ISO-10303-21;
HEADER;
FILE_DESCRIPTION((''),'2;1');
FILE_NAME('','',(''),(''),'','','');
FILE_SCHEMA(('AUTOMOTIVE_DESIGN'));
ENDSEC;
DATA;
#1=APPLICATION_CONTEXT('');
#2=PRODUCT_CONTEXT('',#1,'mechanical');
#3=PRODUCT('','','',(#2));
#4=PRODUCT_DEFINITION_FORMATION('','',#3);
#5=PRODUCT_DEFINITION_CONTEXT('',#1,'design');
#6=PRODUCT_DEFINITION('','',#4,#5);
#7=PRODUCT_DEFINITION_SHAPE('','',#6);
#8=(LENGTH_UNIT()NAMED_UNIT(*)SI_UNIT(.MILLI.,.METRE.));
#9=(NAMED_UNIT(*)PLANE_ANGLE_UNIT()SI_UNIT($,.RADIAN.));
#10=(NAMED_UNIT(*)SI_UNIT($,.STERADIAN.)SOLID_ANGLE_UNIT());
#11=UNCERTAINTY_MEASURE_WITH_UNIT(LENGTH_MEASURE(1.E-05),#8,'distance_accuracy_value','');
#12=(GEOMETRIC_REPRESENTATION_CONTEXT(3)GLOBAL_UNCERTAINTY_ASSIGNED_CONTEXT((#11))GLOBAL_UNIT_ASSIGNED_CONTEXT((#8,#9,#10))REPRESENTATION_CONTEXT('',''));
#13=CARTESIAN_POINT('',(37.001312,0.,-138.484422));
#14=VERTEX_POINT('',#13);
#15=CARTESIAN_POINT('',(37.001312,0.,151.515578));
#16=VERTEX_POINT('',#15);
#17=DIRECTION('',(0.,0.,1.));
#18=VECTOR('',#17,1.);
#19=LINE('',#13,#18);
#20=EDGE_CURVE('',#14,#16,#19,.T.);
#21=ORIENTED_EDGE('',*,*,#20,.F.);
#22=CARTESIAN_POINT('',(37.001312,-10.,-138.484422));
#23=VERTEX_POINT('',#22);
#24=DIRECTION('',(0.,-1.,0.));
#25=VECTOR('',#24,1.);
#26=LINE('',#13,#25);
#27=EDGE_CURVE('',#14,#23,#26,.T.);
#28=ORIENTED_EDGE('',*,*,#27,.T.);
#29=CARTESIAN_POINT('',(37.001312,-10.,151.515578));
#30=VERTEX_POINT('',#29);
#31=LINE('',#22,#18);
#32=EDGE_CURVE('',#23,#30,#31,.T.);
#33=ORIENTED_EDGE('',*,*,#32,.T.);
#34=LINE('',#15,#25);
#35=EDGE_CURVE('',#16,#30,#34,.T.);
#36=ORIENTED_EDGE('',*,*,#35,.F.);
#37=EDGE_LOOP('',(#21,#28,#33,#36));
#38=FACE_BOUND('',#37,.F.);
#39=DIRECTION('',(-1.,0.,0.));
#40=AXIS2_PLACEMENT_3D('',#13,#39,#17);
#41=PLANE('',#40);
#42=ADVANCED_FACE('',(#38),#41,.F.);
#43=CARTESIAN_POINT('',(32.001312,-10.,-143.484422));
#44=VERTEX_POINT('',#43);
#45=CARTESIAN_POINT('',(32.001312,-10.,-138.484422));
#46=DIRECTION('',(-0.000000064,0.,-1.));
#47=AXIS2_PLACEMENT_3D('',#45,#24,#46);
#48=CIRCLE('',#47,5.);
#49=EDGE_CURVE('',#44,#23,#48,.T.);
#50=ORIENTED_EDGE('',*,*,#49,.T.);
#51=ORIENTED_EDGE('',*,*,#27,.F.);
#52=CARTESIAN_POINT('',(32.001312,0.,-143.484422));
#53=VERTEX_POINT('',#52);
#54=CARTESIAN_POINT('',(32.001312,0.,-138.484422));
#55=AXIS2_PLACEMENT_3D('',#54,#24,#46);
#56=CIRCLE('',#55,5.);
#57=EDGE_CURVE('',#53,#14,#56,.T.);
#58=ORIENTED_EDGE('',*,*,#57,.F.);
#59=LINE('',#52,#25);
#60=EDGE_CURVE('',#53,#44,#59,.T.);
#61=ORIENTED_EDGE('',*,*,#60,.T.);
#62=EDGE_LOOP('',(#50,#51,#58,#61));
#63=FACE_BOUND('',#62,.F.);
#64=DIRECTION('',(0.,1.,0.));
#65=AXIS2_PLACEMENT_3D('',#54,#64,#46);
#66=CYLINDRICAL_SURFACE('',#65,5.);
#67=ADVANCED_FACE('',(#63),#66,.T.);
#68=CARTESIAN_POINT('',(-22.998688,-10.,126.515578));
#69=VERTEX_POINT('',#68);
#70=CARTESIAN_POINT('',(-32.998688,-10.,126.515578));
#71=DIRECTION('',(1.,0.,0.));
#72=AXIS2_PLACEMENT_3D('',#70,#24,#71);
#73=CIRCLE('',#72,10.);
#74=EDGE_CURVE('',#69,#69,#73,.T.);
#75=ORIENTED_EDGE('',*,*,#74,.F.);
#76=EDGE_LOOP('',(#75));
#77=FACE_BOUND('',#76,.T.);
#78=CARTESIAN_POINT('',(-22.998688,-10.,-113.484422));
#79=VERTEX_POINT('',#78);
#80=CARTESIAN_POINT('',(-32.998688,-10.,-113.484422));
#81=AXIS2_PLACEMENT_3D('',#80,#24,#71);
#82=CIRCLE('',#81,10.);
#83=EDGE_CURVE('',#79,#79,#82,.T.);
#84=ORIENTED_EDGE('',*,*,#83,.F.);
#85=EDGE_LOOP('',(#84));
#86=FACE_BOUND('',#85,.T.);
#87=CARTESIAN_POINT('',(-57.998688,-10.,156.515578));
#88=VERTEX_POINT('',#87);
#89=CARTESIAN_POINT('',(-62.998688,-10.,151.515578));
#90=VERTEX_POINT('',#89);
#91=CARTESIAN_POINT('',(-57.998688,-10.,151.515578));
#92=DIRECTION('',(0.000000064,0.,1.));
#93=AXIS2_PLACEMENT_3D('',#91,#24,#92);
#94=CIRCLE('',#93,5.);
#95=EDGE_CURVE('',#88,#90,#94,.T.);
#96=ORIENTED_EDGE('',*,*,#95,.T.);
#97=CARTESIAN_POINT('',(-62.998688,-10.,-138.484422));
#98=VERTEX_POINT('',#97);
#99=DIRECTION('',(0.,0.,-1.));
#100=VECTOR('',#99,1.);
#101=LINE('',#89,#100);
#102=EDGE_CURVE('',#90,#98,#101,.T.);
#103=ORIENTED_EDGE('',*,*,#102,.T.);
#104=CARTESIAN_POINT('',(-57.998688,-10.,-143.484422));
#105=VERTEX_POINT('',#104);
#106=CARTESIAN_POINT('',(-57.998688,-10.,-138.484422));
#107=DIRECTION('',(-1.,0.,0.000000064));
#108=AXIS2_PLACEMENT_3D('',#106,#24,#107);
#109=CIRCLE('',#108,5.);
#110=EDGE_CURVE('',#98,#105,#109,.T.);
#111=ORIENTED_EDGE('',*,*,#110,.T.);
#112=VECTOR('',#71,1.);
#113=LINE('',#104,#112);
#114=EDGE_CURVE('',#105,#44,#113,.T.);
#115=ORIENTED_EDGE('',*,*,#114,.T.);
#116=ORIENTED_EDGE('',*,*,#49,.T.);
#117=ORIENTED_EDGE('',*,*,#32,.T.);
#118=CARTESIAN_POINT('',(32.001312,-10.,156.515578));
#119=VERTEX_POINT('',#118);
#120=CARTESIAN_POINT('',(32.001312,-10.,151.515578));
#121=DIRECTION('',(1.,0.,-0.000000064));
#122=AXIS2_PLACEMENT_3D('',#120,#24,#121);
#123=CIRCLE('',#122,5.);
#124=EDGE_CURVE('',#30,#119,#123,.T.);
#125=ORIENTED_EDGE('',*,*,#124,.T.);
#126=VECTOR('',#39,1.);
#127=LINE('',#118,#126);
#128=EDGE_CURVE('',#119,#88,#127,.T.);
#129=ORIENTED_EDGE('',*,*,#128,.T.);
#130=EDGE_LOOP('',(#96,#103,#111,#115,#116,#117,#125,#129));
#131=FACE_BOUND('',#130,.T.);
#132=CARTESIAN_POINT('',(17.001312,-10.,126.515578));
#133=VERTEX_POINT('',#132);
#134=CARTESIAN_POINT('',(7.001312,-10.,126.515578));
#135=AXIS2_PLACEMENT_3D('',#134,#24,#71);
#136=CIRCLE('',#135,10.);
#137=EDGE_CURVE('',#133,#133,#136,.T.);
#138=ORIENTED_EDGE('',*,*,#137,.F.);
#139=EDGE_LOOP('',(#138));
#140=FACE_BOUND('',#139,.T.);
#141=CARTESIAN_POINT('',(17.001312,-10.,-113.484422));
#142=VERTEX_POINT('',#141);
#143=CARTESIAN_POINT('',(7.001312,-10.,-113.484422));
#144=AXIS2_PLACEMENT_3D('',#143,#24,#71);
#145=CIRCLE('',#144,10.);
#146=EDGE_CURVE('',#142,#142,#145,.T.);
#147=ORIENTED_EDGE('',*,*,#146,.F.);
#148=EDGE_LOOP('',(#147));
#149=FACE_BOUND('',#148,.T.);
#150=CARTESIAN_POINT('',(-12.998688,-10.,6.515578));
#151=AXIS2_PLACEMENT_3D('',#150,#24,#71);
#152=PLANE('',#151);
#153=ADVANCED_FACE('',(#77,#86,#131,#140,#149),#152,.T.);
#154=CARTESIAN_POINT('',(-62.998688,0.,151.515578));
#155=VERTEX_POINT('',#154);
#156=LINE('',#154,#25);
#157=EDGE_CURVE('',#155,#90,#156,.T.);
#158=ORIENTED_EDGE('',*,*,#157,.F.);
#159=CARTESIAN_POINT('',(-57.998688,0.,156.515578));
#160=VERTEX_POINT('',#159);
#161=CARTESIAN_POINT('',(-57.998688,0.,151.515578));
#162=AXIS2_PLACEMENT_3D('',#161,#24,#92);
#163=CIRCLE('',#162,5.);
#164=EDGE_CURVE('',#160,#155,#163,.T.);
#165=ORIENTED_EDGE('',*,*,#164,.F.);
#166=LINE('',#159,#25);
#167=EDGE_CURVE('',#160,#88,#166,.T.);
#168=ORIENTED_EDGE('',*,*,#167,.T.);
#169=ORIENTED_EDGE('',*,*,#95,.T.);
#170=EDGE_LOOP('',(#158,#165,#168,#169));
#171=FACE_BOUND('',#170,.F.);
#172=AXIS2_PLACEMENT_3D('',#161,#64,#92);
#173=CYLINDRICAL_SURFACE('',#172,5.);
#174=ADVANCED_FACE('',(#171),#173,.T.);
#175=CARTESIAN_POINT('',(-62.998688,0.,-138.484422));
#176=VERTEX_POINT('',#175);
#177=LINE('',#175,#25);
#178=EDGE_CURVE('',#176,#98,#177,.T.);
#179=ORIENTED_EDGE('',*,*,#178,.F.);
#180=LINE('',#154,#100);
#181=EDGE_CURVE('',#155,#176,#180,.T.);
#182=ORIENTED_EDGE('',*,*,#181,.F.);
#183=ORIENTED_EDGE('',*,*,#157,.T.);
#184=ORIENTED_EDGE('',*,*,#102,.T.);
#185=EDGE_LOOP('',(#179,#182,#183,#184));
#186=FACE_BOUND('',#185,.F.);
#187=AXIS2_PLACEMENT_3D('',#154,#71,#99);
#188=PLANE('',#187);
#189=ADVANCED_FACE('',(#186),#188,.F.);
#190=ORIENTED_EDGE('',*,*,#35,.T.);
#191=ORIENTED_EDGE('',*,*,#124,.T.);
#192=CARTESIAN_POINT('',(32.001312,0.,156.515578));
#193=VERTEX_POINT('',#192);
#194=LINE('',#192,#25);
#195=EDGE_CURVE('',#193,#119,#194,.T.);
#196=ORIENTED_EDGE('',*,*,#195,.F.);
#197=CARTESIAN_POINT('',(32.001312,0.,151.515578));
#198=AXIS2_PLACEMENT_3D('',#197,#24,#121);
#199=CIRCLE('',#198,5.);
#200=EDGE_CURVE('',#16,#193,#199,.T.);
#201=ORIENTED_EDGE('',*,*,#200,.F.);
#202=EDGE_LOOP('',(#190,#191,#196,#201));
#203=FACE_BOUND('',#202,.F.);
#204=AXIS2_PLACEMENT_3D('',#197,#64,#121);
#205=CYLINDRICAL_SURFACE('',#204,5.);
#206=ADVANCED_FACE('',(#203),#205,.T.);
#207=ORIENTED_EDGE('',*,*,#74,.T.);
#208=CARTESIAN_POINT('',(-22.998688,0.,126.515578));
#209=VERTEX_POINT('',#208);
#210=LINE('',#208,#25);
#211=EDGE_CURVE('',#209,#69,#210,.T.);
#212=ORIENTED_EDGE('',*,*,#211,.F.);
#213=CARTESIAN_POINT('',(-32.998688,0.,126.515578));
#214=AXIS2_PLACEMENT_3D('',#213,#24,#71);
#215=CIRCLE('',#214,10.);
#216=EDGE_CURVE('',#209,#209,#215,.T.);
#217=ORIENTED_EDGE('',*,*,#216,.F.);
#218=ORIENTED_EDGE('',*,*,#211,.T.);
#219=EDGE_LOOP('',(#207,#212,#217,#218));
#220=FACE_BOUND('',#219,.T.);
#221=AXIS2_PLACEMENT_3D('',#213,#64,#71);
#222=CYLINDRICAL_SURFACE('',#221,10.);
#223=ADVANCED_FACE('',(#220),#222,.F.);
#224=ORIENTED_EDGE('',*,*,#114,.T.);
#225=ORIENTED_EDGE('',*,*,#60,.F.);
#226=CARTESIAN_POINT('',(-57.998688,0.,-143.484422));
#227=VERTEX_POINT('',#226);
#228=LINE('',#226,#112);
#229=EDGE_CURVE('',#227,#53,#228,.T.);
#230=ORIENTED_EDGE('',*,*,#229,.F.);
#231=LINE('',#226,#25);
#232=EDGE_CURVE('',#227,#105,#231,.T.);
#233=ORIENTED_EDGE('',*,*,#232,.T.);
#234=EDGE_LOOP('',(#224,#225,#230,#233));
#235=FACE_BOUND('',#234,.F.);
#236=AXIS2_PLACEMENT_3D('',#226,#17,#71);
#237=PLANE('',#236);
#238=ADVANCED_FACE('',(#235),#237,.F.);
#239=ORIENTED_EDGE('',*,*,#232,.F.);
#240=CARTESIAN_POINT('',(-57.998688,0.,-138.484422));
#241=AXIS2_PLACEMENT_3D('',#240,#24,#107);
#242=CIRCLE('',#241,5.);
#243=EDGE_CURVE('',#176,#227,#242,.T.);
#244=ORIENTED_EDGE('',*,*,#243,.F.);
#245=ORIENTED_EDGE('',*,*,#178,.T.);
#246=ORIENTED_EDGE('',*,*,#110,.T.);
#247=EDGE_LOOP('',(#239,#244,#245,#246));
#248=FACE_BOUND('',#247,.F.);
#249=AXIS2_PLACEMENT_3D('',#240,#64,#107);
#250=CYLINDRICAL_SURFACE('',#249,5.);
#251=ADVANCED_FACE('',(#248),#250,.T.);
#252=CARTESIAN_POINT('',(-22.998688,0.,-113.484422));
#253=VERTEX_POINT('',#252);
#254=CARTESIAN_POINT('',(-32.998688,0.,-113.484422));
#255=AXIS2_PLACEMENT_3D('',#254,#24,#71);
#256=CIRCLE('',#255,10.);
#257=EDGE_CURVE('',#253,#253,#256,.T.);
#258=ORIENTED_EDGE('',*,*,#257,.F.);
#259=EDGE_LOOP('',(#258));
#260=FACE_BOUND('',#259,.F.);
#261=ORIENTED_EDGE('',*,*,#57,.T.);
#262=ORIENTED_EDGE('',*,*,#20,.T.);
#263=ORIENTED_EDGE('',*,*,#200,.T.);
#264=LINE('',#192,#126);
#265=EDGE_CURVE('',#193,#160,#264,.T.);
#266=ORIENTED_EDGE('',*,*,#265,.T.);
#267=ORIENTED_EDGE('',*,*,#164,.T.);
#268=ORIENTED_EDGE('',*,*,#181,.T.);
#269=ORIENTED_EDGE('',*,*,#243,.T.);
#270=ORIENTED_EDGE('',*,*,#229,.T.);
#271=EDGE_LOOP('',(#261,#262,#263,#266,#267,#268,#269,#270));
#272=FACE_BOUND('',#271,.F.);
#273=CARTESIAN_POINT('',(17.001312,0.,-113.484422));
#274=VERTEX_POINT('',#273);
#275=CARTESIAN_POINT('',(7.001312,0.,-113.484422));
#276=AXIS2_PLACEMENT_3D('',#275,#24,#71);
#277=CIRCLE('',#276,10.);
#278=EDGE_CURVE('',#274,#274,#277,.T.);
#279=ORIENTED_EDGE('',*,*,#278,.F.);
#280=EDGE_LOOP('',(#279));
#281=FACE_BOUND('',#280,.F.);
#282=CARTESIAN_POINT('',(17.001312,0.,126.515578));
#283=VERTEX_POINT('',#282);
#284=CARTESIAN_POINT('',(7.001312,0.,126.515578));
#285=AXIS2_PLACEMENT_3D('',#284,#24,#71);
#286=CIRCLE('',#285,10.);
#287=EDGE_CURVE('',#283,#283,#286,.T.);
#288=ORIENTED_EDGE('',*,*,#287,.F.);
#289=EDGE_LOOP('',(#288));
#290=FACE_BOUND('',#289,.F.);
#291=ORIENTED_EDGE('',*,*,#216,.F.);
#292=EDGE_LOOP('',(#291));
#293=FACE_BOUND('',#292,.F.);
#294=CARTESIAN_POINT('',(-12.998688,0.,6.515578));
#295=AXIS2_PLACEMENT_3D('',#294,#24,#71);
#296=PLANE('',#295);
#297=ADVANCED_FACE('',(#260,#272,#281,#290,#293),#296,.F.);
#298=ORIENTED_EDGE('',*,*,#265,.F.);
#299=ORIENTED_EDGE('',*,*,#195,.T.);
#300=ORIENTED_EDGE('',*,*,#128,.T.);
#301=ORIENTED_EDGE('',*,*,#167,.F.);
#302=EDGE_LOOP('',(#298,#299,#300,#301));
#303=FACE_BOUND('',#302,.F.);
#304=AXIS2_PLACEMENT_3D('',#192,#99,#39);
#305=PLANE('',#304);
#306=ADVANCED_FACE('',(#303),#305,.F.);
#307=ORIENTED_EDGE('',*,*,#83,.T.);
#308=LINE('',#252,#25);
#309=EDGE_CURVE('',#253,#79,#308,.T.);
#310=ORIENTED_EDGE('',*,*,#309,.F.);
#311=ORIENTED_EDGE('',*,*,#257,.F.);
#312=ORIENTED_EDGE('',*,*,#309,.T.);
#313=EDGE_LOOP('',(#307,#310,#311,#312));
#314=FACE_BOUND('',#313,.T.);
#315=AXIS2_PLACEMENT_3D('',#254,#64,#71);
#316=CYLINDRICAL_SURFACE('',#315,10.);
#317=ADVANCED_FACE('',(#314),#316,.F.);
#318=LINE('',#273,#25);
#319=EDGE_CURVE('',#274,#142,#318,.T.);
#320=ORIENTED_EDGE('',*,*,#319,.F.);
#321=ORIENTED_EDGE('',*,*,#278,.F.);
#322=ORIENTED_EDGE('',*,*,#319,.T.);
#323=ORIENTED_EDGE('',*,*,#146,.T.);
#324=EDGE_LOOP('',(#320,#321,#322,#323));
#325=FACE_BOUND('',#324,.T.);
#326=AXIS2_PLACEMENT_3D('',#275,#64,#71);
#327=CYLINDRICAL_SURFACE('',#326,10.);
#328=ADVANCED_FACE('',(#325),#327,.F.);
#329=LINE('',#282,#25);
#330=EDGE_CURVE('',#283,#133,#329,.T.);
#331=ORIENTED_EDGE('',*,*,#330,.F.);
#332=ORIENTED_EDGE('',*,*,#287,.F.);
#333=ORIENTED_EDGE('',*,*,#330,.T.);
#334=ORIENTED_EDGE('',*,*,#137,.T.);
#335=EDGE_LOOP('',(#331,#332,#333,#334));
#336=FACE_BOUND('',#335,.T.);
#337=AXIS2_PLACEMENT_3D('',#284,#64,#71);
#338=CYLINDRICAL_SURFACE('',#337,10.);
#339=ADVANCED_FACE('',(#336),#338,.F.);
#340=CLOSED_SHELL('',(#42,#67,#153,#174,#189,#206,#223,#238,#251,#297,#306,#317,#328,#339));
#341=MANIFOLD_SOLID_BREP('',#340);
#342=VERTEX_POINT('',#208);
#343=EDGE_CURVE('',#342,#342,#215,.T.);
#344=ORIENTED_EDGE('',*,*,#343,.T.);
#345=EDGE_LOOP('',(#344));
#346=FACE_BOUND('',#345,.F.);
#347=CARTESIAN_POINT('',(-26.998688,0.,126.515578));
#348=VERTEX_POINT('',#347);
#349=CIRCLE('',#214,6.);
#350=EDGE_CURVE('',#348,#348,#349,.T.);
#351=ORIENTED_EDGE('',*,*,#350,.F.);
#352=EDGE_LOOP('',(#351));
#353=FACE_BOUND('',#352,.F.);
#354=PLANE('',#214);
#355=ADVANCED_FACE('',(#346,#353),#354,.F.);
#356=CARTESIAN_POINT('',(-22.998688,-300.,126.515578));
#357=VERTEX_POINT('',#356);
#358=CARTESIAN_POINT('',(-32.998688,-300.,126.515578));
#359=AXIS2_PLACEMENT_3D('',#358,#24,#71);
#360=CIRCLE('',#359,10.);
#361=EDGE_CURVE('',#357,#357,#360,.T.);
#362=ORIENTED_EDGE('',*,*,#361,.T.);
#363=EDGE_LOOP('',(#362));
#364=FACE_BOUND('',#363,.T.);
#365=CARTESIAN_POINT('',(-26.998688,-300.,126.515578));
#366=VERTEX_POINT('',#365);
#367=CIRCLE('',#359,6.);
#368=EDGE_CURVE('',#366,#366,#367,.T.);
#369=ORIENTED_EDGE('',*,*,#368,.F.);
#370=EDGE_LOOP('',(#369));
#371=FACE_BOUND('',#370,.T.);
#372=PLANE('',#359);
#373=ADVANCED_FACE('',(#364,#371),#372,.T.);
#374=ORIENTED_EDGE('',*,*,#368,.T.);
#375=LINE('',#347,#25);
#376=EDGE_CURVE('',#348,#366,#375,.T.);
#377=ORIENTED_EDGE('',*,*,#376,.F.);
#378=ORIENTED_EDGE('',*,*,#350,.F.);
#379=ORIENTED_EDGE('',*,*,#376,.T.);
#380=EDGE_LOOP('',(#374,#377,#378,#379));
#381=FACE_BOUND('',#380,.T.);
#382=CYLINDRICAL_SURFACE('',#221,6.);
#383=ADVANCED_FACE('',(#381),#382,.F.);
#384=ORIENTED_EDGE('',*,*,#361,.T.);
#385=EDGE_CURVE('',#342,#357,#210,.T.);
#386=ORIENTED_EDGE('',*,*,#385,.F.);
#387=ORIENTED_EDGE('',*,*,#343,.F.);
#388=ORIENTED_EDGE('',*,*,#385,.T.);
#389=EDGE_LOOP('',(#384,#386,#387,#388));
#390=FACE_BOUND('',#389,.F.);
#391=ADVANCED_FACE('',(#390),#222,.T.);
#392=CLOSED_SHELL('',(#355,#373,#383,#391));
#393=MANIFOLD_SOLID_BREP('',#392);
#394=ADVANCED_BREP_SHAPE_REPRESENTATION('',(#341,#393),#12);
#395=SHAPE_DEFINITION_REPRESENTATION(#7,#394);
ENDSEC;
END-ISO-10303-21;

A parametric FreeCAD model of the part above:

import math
import FreeCAD as App
import Part
import Sketcher

doc = App.newDocument("Part")
body = doc.addObject("PartDesign::Body", "Body")

# Sketch on XZ plane
sketch1 = doc.addObject("Sketcher::SketchObject", "Sketch")
body.addObject(sketch1)
sketch1.AttachmentSupport = (doc.XZ_Plane, [""])
sketch1.MapMode = "FlatFace"
sketch1.addGeometry(Part.LineSegment(App.Vector(32, 156.5, 0), App.Vector(-58, 156.5, 0)), False)
sketch1.addGeometry(Part.ArcOfCircle(Part.Circle(App.Vector(-58, 151.5, 0), App.Vector(0, 0, 1), 5), math.radians(90), math.radians(180)), False)
sketch1.addGeometry(Part.LineSegment(App.Vector(-63, 151.5, 0), App.Vector(-63, -138.5, 0)), False)
sketch1.addGeometry(Part.ArcOfCircle(Part.Circle(App.Vector(-58, -138.5, 0), App.Vector(0, 0, 1), 5), math.radians(180), math.radians(270)), False)
sketch1.addGeometry(Part.LineSegment(App.Vector(-58, -143.5, 0), App.Vector(32, -143.5, 0)), False)
sketch1.addGeometry(Part.ArcOfCircle(Part.Circle(App.Vector(32, -138.5, 0), App.Vector(0, 0, 1), 5), math.radians(-90), math.radians(0)), False)
sketch1.addGeometry(Part.LineSegment(App.Vector(37, -138.5, 0), App.Vector(37, 151.5, 0)), False)
sketch1.addGeometry(Part.ArcOfCircle(Part.Circle(App.Vector(32, 151.5, 0), App.Vector(0, 0, 1), 5), math.radians(0), math.radians(90)), False)
sketch1.addGeometry(Part.Circle(App.Vector(-33, -113.5, 0), App.Vector(0, 0, 1), 10), False)
sketch1.addGeometry(Part.Circle(App.Vector(7, -113.5, 0), App.Vector(0, 0, 1), 10), False)
sketch1.addGeometry(Part.Circle(App.Vector(-33, 126.5, 0), App.Vector(0, 0, 1), 10), False)
sketch1.addGeometry(Part.Circle(App.Vector(7, 126.5, 0), App.Vector(0, 0, 1), 10), False)
sketch1.addConstraint(Sketcher.Constraint("Tangent", 0, 2, 1, 1))
sketch1.addConstraint(Sketcher.Constraint("Tangent", 1, 2, 2, 1))
sketch1.addConstraint(Sketcher.Constraint("Tangent", 2, 2, 3, 1))
sketch1.addConstraint(Sketcher.Constraint("Tangent", 3, 2, 4, 1))
sketch1.addConstraint(Sketcher.Constraint("Tangent", 4, 2, 5, 1))
sketch1.addConstraint(Sketcher.Constraint("Tangent", 5, 2, 6, 1))
sketch1.addConstraint(Sketcher.Constraint("Tangent", 6, 2, 7, 1))
sketch1.addConstraint(Sketcher.Constraint("Tangent", 7, 2, 0, 1))
sketch1.addConstraint(Sketcher.Constraint("Horizontal", 0))
sketch1.addConstraint(Sketcher.Constraint("Vertical", 2))
sketch1.addConstraint(Sketcher.Constraint("Horizontal", 4))
sketch1.addConstraint(Sketcher.Constraint("Vertical", 6))
sketch1.addConstraint(Sketcher.Constraint("Equal", 1, 3))
sketch1.addConstraint(Sketcher.Constraint("Equal", 3, 5))
sketch1.addConstraint(Sketcher.Constraint("Equal", 5, 7))
sketch1.addConstraint(Sketcher.Constraint("Equal", 8, 9))
sketch1.addConstraint(Sketcher.Constraint("Equal", 9, 10))
sketch1.addConstraint(Sketcher.Constraint("Equal", 10, 11))
sketch1.addConstraint(Sketcher.Constraint("Horizontal", 8, 3, 9, 3))
sketch1.addConstraint(Sketcher.Constraint("Horizontal", 10, 3, 11, 3))
sketch1.addConstraint(Sketcher.Constraint("Vertical", 8, 3, 10, 3))
sketch1.addConstraint(Sketcher.Constraint("Vertical", 9, 3, 11, 3))
sketch1.addConstraint(Sketcher.Constraint("Diameter", 8, 20.0))
sketch1.addConstraint(Sketcher.Constraint("Radius", 1, 5.0))
sketch1.addConstraint(Sketcher.Constraint("DistanceX", 0, 2, 0, 1, 90.0))
sketch1.addConstraint(Sketcher.Constraint("DistanceY", 2, 2, 2, 1, 290.0))
sketch1.addConstraint(Sketcher.Constraint("DistanceX", 3, 3, 8, 3, 25.0))
sketch1.addConstraint(Sketcher.Constraint("DistanceY", 3, 3, 8, 3, 25.0))
sketch1.addConstraint(Sketcher.Constraint("DistanceX", 9, 3, 5, 3, 25.0))
sketch1.addConstraint(Sketcher.Constraint("DistanceY", 10, 3, 1, 3, 25.0))
sketch1.addConstraint(Sketcher.Constraint("DistanceX", 1, 3, -1, 1, 57.998688))
sketch1.addConstraint(Sketcher.Constraint("DistanceY", -1, 1, 1, 3, 151.515578))
pad1 = doc.addObject("PartDesign::Pad", "Pad")
body.addObject(pad1)
pad1.Profile = sketch1
pad1.Length = 10
body2 = doc.addObject("PartDesign::Body", "Body001")

# Sketch on XZ plane
sketch2 = doc.addObject("Sketcher::SketchObject", "Sketch001")
body2.addObject(sketch2)
sketch2.AttachmentSupport = (doc.getObject("XZ_Plane001"), [""])
sketch2.MapMode = "FlatFace"
sketch2.addGeometry(Part.Circle(App.Vector(-33, 127, 0), App.Vector(0, 0, 1), 10), False)
sketch2.addGeometry(Part.Circle(App.Vector(-33, 127, 0), App.Vector(0, 0, 1), 6), False)
sketch2.addConstraint(Sketcher.Constraint("Coincident", 1, 3, 0, 3))
sketch2.addConstraint(Sketcher.Constraint("Diameter", 0, 20.0))
sketch2.addConstraint(Sketcher.Constraint("Diameter", 1, 12.0))
sketch2.addConstraint(Sketcher.Constraint("DistanceY", -1, 1, 0, 3, 126.515578))
sketch2.addConstraint(Sketcher.Constraint("DistanceX", 0, 3, -1, 1, 32.998688))
pad2 = doc.addObject("PartDesign::Pad", "Pad001")
body2.addObject(pad2)
pad2.Profile = sketch2
pad2.Length = 300

doc.recompute()
